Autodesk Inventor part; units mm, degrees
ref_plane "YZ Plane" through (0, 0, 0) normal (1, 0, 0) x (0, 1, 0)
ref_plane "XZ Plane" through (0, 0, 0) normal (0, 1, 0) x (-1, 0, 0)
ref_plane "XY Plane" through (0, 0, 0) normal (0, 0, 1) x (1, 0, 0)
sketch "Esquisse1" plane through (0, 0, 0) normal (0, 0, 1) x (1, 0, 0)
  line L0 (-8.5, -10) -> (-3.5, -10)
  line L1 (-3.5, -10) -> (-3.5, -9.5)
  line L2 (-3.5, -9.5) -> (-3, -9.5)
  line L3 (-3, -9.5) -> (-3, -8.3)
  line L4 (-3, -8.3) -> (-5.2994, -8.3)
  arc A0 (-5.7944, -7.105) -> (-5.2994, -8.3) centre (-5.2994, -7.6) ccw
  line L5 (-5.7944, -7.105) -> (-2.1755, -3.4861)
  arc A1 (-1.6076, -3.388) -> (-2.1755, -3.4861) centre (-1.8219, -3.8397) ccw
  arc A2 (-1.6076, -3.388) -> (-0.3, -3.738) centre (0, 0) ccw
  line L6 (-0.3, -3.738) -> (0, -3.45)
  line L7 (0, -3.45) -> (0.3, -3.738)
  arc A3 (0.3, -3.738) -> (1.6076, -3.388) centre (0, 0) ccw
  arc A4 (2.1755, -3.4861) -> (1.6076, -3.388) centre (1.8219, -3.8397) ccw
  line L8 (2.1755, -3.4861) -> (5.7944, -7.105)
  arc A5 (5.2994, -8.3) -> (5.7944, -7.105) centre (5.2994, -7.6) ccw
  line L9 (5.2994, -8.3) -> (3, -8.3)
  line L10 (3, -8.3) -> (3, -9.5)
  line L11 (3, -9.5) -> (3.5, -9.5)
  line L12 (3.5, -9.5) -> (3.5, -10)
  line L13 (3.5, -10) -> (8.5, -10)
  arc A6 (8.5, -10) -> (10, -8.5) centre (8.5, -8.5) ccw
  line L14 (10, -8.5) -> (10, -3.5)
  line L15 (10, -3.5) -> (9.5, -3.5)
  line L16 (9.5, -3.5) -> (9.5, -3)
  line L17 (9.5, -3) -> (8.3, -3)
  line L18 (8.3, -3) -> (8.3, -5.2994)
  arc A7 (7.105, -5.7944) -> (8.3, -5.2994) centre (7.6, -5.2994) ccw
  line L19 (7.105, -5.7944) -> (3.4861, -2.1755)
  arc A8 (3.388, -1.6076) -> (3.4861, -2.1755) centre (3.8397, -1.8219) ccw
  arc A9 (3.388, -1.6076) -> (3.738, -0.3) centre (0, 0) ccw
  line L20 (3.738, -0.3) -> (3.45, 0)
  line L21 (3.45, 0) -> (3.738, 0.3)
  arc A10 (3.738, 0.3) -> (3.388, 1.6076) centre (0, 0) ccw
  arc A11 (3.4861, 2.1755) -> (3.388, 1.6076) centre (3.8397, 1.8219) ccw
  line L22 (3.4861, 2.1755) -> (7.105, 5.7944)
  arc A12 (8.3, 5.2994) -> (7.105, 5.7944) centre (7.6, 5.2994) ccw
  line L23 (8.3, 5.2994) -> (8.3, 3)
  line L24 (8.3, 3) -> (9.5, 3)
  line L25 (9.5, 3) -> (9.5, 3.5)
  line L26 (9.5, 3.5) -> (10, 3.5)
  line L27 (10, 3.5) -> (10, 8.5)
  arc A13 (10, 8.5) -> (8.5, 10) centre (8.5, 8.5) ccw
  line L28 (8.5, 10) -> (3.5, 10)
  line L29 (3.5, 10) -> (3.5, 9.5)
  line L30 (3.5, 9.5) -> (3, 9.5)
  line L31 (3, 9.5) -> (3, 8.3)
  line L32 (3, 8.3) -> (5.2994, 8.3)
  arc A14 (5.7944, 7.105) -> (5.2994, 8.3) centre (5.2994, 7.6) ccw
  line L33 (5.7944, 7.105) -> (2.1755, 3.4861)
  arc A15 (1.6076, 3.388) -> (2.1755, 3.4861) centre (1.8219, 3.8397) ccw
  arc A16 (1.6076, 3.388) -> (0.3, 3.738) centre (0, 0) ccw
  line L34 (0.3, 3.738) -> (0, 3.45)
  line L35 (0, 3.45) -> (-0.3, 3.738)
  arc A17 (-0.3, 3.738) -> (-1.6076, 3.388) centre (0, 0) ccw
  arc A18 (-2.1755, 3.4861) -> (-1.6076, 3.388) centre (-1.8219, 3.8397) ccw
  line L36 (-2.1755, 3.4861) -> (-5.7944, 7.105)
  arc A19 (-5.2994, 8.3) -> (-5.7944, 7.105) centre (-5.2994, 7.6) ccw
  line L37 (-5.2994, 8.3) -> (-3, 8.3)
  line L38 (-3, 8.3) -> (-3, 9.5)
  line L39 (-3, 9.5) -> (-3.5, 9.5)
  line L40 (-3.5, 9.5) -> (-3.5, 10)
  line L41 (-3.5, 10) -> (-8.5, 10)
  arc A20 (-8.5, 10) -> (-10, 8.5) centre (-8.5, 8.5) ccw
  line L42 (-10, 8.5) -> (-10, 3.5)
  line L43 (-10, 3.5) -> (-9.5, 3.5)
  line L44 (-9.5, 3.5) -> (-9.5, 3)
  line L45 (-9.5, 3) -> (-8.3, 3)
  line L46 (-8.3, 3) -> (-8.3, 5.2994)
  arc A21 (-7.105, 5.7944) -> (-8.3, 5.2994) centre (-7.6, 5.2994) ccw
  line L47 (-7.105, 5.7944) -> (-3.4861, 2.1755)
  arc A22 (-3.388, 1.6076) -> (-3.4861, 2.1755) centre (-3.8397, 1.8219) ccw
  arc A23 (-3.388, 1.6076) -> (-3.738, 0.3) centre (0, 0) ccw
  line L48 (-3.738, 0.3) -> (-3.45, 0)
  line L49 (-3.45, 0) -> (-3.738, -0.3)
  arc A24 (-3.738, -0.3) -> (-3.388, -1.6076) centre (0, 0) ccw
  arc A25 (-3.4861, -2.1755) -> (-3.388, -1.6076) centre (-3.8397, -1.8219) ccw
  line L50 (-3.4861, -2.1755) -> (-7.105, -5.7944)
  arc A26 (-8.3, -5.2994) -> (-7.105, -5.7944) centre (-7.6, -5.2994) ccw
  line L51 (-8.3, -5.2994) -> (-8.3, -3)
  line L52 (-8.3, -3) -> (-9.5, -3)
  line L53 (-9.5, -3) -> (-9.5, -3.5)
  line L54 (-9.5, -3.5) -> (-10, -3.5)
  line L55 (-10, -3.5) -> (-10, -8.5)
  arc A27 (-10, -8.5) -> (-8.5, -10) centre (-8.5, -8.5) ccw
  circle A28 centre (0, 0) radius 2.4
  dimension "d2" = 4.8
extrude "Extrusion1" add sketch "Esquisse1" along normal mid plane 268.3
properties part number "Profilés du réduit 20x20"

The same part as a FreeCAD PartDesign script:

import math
import FreeCAD as App
import Part
import Sketcher
from FreeCAD import Vector

doc = App.newDocument("Part")
body = doc.addObject("PartDesign::Body", "Body")

# Sketch on XY plane
sketch1 = doc.addObject("Sketcher::SketchObject", "Sketch")
body.addObject(sketch1)
sketch1.AttachmentSupport = (doc.XY_Plane, [""])
sketch1.MapMode = "FlatFace"
sketch1.addGeometry(Part.ArcOfCircle(Part.Circle(Vector(-8.5, -8.5, 0), Vector(0, 0, 1), 1.5), math.radians(180), math.radians(270)), False)
sketch1.addGeometry(Part.LineSegment(Vector(-8.5, -10, 0), Vector(-3.5, -10, 0)), False)
sketch1.addGeometry(Part.LineSegment(Vector(-3.5, -10, 0), Vector(-3.5, -9.5, 0)), False)
sketch1.addGeometry(Part.LineSegment(Vector(-3.5, -9.5, 0), Vector(-3, -9.5, 0)), False)
sketch1.addGeometry(Part.LineSegment(Vector(-3, -9.5, 0), Vector(-3, -8.3, 0)), False)
sketch1.addGeometry(Part.LineSegment(Vector(-3, -8.3, 0), Vector(-5.2994, -8.3, 0)), False)
sketch1.addGeometry(Part.ArcOfCircle(Part.Circle(Vector(-5.2994, -7.6, 0), Vector(0, 0, 1), 0.700036), math.radians(135), math.radians(270)), False)
sketch1.addGeometry(Part.LineSegment(Vector(-5.7944, -7.105, 0), Vector(-2.1755, -3.4861, 0)), False)
sketch1.addGeometry(Part.ArcOfCircle(Part.Circle(Vector(-1.8219, -3.8397, 0), Vector(0, 0, 1), 0.499957), math.radians(64.618937), math.radians(135)), False)
sketch1.addGeometry(Part.ArcOfCircle(Part.Circle(Vector(-0.000391, -0.001062, 0), Vector(0, 0, 1), 3.748929), math.radians(-115.385824), math.radians(-94.583891)), False)
sketch1.addGeometry(Part.LineSegment(Vector(-0.3, -3.738, 0), Vector(0, -3.45, 0)), False)
sketch1.addGeometry(Part.LineSegment(Vector(0, -3.45, 0), Vector(0.3, -3.738, 0)), False)
sketch1.addGeometry(Part.ArcOfCircle(Part.Circle(Vector(-0.000193, 0.001116, 0), Vector(0, 0, 1), 3.751147), math.radians(-85.40989), math.radians(-64.620395)), False)
sketch1.addGeometry(Part.ArcOfCircle(Part.Circle(Vector(1.8219, -3.8397, 0), Vector(0, 0, 1), 0.500066), math.radians(45), math.radians(115.381063)), False)
sketch1.addGeometry(Part.LineSegment(Vector(2.1755, -3.4861, 0), Vector(5.7944, -7.105, 0)), False)
sketch1.addGeometry(Part.ArcOfCircle(Part.Circle(Vector(5.2994, -7.6, 0), Vector(0, 0, 1), 0.7), math.radians(-90), math.radians(45)), False)
sketch1.addGeometry(Part.LineSegment(Vector(5.2994, -8.3, 0), Vector(3, -8.3, 0)), False)
sketch1.addGeometry(Part.LineSegment(Vector(3, -8.3, 0), Vector(3, -9.5, 0)), False)
sketch1.addGeometry(Part.LineSegment(Vector(3, -9.5, 0), Vector(3.5, -9.5, 0)), False)
sketch1.addGeometry(Part.LineSegment(Vector(3.5, -9.5, 0), Vector(3.5, -10, 0)), False)
sketch1.addGeometry(Part.LineSegment(Vector(3.5, -10, 0), Vector(8.5, -10, 0)), False)
sketch1.addGeometry(Part.ArcOfCircle(Part.Circle(Vector(8.5, -8.5, 0), Vector(0, 0, 1), 1.5), math.radians(-90), math.radians(0)), False)
sketch1.addGeometry(Part.LineSegment(Vector(10, -8.5, 0), Vector(10, -3.5, 0)), False)
sketch1.addGeometry(Part.LineSegment(Vector(10, -3.5, 0), Vector(9.5, -3.5, 0)), False)
sketch1.addGeometry(Part.LineSegment(Vector(9.5, -3.5, 0), Vector(9.5, -3, 0)), False)
sketch1.addGeometry(Part.LineSegment(Vector(9.5, -3, 0), Vector(8.3, -3, 0)), False)
sketch1.addGeometry(Part.LineSegment(Vector(8.3, -3, 0), Vector(8.3, -5.2994, 0)), False)
sketch1.addGeometry(Part.ArcOfCircle(Part.Circle(Vector(7.6, -5.2994, 0), Vector(0, 0, 1), 0.700036), math.radians(-135), math.radians(0)), False)
sketch1.addGeometry(Part.LineSegment(Vector(7.105, -5.7944, 0), Vector(3.4861, -2.1755, 0)), False)
sketch1.addGeometry(Part.ArcOfCircle(Part.Circle(Vector(3.8397, -1.8219, 0), Vector(0, 0, 1), 0.499957), math.radians(154.618937), math.radians(225)), False)
sketch1.addGeometry(Part.ArcOfCircle(Part.Circle(Vector(0.001062, -0.000391, 0), Vector(0, 0, 1), 3.748929), math.radians(-25.385824), math.radians(-4.583891)), False)
sketch1.addGeometry(Part.LineSegment(Vector(3.738, -0.3, 0), Vector(3.45, 0, 0)), False)
sketch1.addGeometry(Part.LineSegment(Vector(3.45, 0, 0), Vector(3.738, 0.3, 0)), False)
sketch1.addGeometry(Part.ArcOfCircle(Part.Circle(Vector(-0.001116, -0.000193, 0), Vector(0, 0, 1), 3.751147), math.radians(4.59011), math.radians(25.379605)), False)
sketch1.addGeometry(Part.ArcOfCircle(Part.Circle(Vector(3.8397, 1.8219, 0), Vector(0, 0, 1), 0.500066), math.radians(135), math.radians(205.381063)), False)
sketch1.addGeometry(Part.LineSegment(Vector(3.4861, 2.1755, 0), Vector(7.105, 5.7944, 0)), False)
sketch1.addGeometry(Part.ArcOfCircle(Part.Circle(Vector(7.6, 5.2994, 0), Vector(0, 0, 1), 0.7), math.radians(0), math.radians(135)), False)
sketch1.addGeometry(Part.LineSegment(Vector(8.3, 5.2994, 0), Vector(8.3, 3, 0)), False)
sketch1.addGeometry(Part.LineSegment(Vector(8.3, 3, 0), Vector(9.5, 3, 0)), False)
sketch1.addGeometry(Part.LineSegment(Vector(9.5, 3, 0), Vector(9.5, 3.5, 0)), False)
sketch1.addGeometry(Part.LineSegment(Vector(9.5, 3.5, 0), Vector(10, 3.5, 0)), False)
sketch1.addGeometry(Part.LineSegment(Vector(10, 3.5, 0), Vector(10, 8.5, 0)), False)
sketch1.addGeometry(Part.ArcOfCircle(Part.Circle(Vector(8.5, 8.5, 0), Vector(0, 0, 1), 1.5), math.radians(0), math.radians(90)), False)
sketch1.addGeometry(Part.LineSegment(Vector(8.5, 10, 0), Vector(3.5, 10, 0)), False)
sketch1.addGeometry(Part.LineSegment(Vector(3.5, 10, 0), Vector(3.5, 9.5, 0)), False)
sketch1.addGeometry(Part.LineSegment(Vector(3.5, 9.5, 0), Vector(3, 9.5, 0)), False)
sketch1.addGeometry(Part.LineSegment(Vector(3, 9.5, 0), Vector(3, 8.3, 0)), False)
sketch1.addGeometry(Part.LineSegment(Vector(3, 8.3, 0), Vector(5.2994, 8.3, 0)), False)
sketch1.addGeometry(Part.ArcOfCircle(Part.Circle(Vector(5.2994, 7.6, 0), Vector(0, 0, 1), 0.700036), math.radians(-45), math.radians(90)), False)
sketch1.addGeometry(Part.LineSegment(Vector(5.7944, 7.105, 0), Vector(2.1755, 3.4861, 0)), False)
sketch1.addGeometry(Part.ArcOfCircle(Part.Circle(Vector(1.8219, 3.8397, 0), Vector(0, 0, 1), 0.499957), math.radians(-115.381063), math.radians(-45)), False)
sketch1.addGeometry(Part.ArcOfCircle(Part.Circle(Vector(0.000391, 0.001062, 0), Vector(0, 0, 1), 3.748929), math.radians(64.614176), math.radians(85.416109)), False)
sketch1.addGeometry(Part.LineSegment(Vector(0.3, 3.738, 0), Vector(0, 3.45, 0)), False)
sketch1.addGeometry(Part.LineSegment(Vector(0, 3.45, 0), Vector(-0.3, 3.738, 0)), False)
sketch1.addGeometry(Part.ArcOfCircle(Part.Circle(Vector(0.000193, -0.001116, 0), Vector(0, 0, 1), 3.751147), math.radians(94.59011), math.radians(115.379605)), False)
sketch1.addGeometry(Part.ArcOfCircle(Part.Circle(Vector(-1.8219, 3.8397, 0), Vector(0, 0, 1), 0.500066), math.radians(-135), math.radians(-64.618937)), False)
sketch1.addGeometry(Part.LineSegment(Vector(-2.1755, 3.4861, 0), Vector(-5.7944, 7.105, 0)), False)
sketch1.addGeometry(Part.ArcOfCircle(Part.Circle(Vector(-5.2994, 7.6, 0), Vector(0, 0, 1), 0.7), math.radians(90), math.radians(225)), False)
sketch1.addGeometry(Part.LineSegment(Vector(-5.2994, 8.3, 0), Vector(-3, 8.3, 0)), False)
sketch1.addGeometry(Part.LineSegment(Vector(-3, 8.3, 0), Vector(-3, 9.5, 0)), False)
sketch1.addGeometry(Part.LineSegment(Vector(-3, 9.5, 0), Vector(-3.5, 9.5, 0)), False)
sketch1.addGeometry(Part.LineSegment(Vector(-3.5, 9.5, 0), Vector(-3.5, 10, 0)), False)
sketch1.addGeometry(Part.LineSegment(Vector(-3.5, 10, 0), Vector(-8.5, 10, 0)), False)
sketch1.addGeometry(Part.ArcOfCircle(Part.Circle(Vector(-8.5, 8.5, 0), Vector(0, 0, 1), 1.5), math.radians(90), math.radians(180)), False)
sketch1.addGeometry(Part.LineSegment(Vector(-10, 8.5, 0), Vector(-10, 3.5, 0)), False)
sketch1.addGeometry(Part.LineSegment(Vector(-10, 3.5, 0), Vector(-9.5, 3.5, 0)), False)
sketch1.addGeometry(Part.LineSegment(Vector(-9.5, 3.5, 0), Vector(-9.5, 3, 0)), False)
sketch1.addGeometry(Part.LineSegment(Vector(-9.5, 3, 0), Vector(-8.3, 3, 0)), False)
sketch1.addGeometry(Part.LineSegment(Vector(-8.3, 3, 0), Vector(-8.3, 5.2994, 0)), False)
sketch1.addGeometry(Part.ArcOfCircle(Part.Circle(Vector(-7.6, 5.2994, 0), Vector(0, 0, 1), 0.700036), math.radians(45), math.radians(180)), False)
sketch1.addGeometry(Part.LineSegment(Vector(-7.105, 5.7944, 0), Vector(-3.4861, 2.1755, 0)), False)
sketch1.addGeometry(Part.ArcOfCircle(Part.Circle(Vector(-3.8397, 1.8219, 0), Vector(0, 0, 1), 0.499957), math.radians(-25.381063), math.radians(45)), False)
sketch1.addGeometry(Part.ArcOfCircle(Part.Circle(Vector(-0.001062, 0.000391, 0), Vector(0, 0, 1), 3.748929), math.radians(154.614176), math.radians(175.416109)), False)
sketch1.addGeometry(Part.LineSegment(Vector(-3.738, 0.3, 0), Vector(-3.45, 0, 0)), False)
sketch1.addGeometry(Part.LineSegment(Vector(-3.45, 0, 0), Vector(-3.738, -0.3, 0)), False)
sketch1.addGeometry(Part.ArcOfCircle(Part.Circle(Vector(0.001116, 0.000193, 0), Vector(0, 0, 1), 3.751147), math.radians(-175.40989), math.radians(-154.620395)), False)
sketch1.addGeometry(Part.ArcOfCircle(Part.Circle(Vector(-3.8397, -1.8219, 0), Vector(0, 0, 1), 0.500066), math.radians(-45), math.radians(25.381063)), False)
sketch1.addGeometry(Part.LineSegment(Vector(-3.4861, -2.1755, 0), Vector(-7.105, -5.7944, 0)), False)
sketch1.addGeometry(Part.ArcOfCircle(Part.Circle(Vector(-7.6, -5.2994, 0), Vector(0, 0, 1), 0.7), math.radians(180), math.radians(315)), False)
sketch1.addGeometry(Part.LineSegment(Vector(-8.3, -5.2994, 0), Vector(-8.3, -3, 0)), False)
sketch1.addGeometry(Part.LineSegment(Vector(-8.3, -3, 0), Vector(-9.5, -3, 0)), False)
sketch1.addGeometry(Part.LineSegment(Vector(-9.5, -3, 0), Vector(-9.5, -3.5, 0)), False)
sketch1.addGeometry(Part.LineSegment(Vector(-9.5, -3.5, 0), Vector(-10, -3.5, 0)), False)
sketch1.addGeometry(Part.LineSegment(Vector(-10, -3.5, 0), Vector(-10, -8.5, 0)), False)
sketch1.addGeometry(Part.Circle(Vector(0, 0, 0), Vector(0, 0, 1), 2.4), False)
sketch1.addConstraint(Sketcher.Constraint("Coincident", 0, 2, 1, 1))
sketch1.addConstraint(Sketcher.Constraint("Coincident", 1, 2, 2, 1))
sketch1.addConstraint(Sketcher.Constraint("Coincident", 2, 2, 3, 1))
sketch1.addConstraint(Sketcher.Constraint("Coincident", 3, 2, 4, 1))
sketch1.addConstraint(Sketcher.Constraint("Coincident", 4, 2, 5, 1))
sketch1.addConstraint(Sketcher.Constraint("Coincident", 5, 2, 6, 2))
sketch1.addConstraint(Sketcher.Constraint("Coincident", 6, 1, 7, 1))
sketch1.addConstraint(Sketcher.Constraint("Coincident", 7, 2, 8, 2))
sketch1.addConstraint(Sketcher.Constraint("Coincident", 8, 1, 9, 1))
sketch1.addConstraint(Sketcher.Constraint("Coincident", 9, 2, 10, 1))
sketch1.addConstraint(Sketcher.Constraint("Coincident", 10, 2, 11, 1))
sketch1.addConstraint(Sketcher.Constraint("Coincident", 11, 2, 12, 1))
sketch1.addConstraint(Sketcher.Constraint("Coincident", 12, 2, 13, 2))
sketch1.addConstraint(Sketcher.Constraint("Coincident", 13, 1, 14, 1))
sketch1.addConstraint(Sketcher.Constraint("Coincident", 14, 2, 15, 2))
sketch1.addConstraint(Sketcher.Constraint("Coincident", 15, 1, 16, 1))
sketch1.addConstraint(Sketcher.Constraint("Coincident", 16, 2, 17, 1))
sketch1.addConstraint(Sketcher.Constraint("Coincident", 17, 2, 18, 1))
sketch1.addConstraint(Sketcher.Constraint("Coincident", 18, 2, 19, 1))
sketch1.addConstraint(Sketcher.Constraint("Coincident", 19, 2, 20, 1))
sketch1.addConstraint(Sketcher.Constraint("Coincident", 20, 2, 21, 1))
sketch1.addConstraint(Sketcher.Constraint("Coincident", 21, 2, 22, 1))
sketch1.addConstraint(Sketcher.Constraint("Coincident", 22, 2, 23, 1))
sketch1.addConstraint(Sketcher.Constraint("Coincident", 23, 2, 24, 1))
sketch1.addConstraint(Sketcher.Constraint("Coincident", 24, 2, 25, 1))
sketch1.addConstraint(Sketcher.Constraint("Coincident", 25, 2, 26, 1))
sketch1.addConstraint(Sketcher.Constraint("Coincident", 26, 2, 27, 2))
sketch1.addConstraint(Sketcher.Constraint("Coincident", 27, 1, 28, 1))
sketch1.addConstraint(Sketcher.Constraint("Coincident", 28, 2, 29, 2))
sketch1.addConstraint(Sketcher.Constraint("Coincident", 29, 1, 30, 1))
sketch1.addConstraint(Sketcher.Constraint("Coincident", 30, 2, 31, 1))
sketch1.addConstraint(Sketcher.Constraint("Coincident", 31, 2, 32, 1))
sketch1.addConstraint(Sketcher.Constraint("Coincident", 32, 2, 33, 1))
sketch1.addConstraint(Sketcher.Constraint("Coincident", 33, 2, 34, 2))
sketch1.addConstraint(Sketcher.Constraint("Coincident", 34, 1, 35, 1))
sketch1.addConstraint(Sketcher.Constraint("Coincident", 35, 2, 36, 2))
sketch1.addConstraint(Sketcher.Constraint("Coincident", 36, 1, 37, 1))
sketch1.addConstraint(Sketcher.Constraint("Coincident", 37, 2, 38, 1))
sketch1.addConstraint(Sketcher.Constraint("Coincident", 38, 2, 39, 1))
sketch1.addConstraint(Sketcher.Constraint("Coincident", 39, 2, 40, 1))
sketch1.addConstraint(Sketcher.Constraint("Coincident", 40, 2, 41, 1))
sketch1.addConstraint(Sketcher.Constraint("Coincident", 41, 2, 42, 1))
sketch1.addConstraint(Sketcher.Constraint("Coincident", 42, 2, 43, 1))
sketch1.addConstraint(Sketcher.Constraint("Coincident", 43, 2, 44, 1))
sketch1.addConstraint(Sketcher.Constraint("Coincident", 44, 2, 45, 1))
sketch1.addConstraint(Sketcher.Constraint("Coincident", 45, 2, 46, 1))
sketch1.addConstraint(Sketcher.Constraint("Coincident", 46, 2, 47, 1))
sketch1.addConstraint(Sketcher.Constraint("Coincident", 47, 2, 48, 2))
sketch1.addConstraint(Sketcher.Constraint("Coincident", 48, 1, 49, 1))
sketch1.addConstraint(Sketcher.Constraint("Coincident", 49, 2, 50, 2))
sketch1.addConstraint(Sketcher.Constraint("Coincident", 50, 1, 51, 1))
sketch1.addConstraint(Sketcher.Constraint("Coincident", 51, 2, 52, 1))
sketch1.addConstraint(Sketcher.Constraint("Coincident", 52, 2, 53, 1))
sketch1.addConstraint(Sketcher.Constraint("Coincident", 53, 2, 54, 1))
sketch1.addConstraint(Sketcher.Constraint("Coincident", 54, 2, 55, 2))
sketch1.addConstraint(Sketcher.Constraint("Coincident", 55, 1, 56, 1))
sketch1.addConstraint(Sketcher.Constraint("Coincident", 56, 2, 57, 2))
sketch1.addConstraint(Sketcher.Constraint("Coincident", 57, 1, 58, 1))
sketch1.addConstraint(Sketcher.Constraint("Coincident", 58, 2, 59, 1))
sketch1.addConstraint(Sketcher.Constraint("Coincident", 59, 2, 60, 1))
sketch1.addConstraint(Sketcher.Constraint("Coincident", 60, 2, 61, 1))
sketch1.addConstraint(Sketcher.Constraint("Coincident", 61, 2, 62, 1))
sketch1.addConstraint(Sketcher.Constraint("Coincident", 62, 2, 63, 1))
sketch1.addConstraint(Sketcher.Constraint("Coincident", 63, 2, 64, 1))
sketch1.addConstraint(Sketcher.Constraint("Coincident", 64, 2, 65, 1))
sketch1.addConstraint(Sketcher.Constraint("Coincident", 65, 2, 66, 1))
sketch1.addConstraint(Sketcher.Constraint("Coincident", 66, 2, 67, 1))
sketch1.addConstraint(Sketcher.Constraint("Coincident", 67, 2, 68, 1))
sketch1.addConstraint(Sketcher.Constraint("Coincident", 68, 2, 69, 2))
sketch1.addConstraint(Sketcher.Constraint("Coincident", 69, 1, 70, 1))
sketch1.addConstraint(Sketcher.Constraint("Coincident", 70, 2, 71, 2))
sketch1.addConstraint(Sketcher.Constraint("Coincident", 71, 1, 72, 1))
sketch1.addConstraint(Sketcher.Constraint("Coincident", 72, 2, 73, 1))
sketch1.addConstraint(Sketcher.Constraint("Coincident", 73, 2, 74, 1))
sketch1.addConstraint(Sketcher.Constraint("Coincident", 74, 2, 75, 1))
sketch1.addConstraint(Sketcher.Constraint("Coincident", 75, 2, 76, 2))
sketch1.addConstraint(Sketcher.Constraint("Coincident", 76, 1, 77, 1))
sketch1.addConstraint(Sketcher.Constraint("Coincident", 77, 2, 78, 2))
sketch1.addConstraint(Sketcher.Constraint("Coincident", 78, 1, 79, 1))
sketch1.addConstraint(Sketcher.Constraint("Coincident", 79, 2, 80, 1))
sketch1.addConstraint(Sketcher.Constraint("Coincident", 80, 2, 81, 1))
sketch1.addConstraint(Sketcher.Constraint("Coincident", 81, 2, 82, 1))
sketch1.addConstraint(Sketcher.Constraint("Coincident", 82, 2, 83, 1))
sketch1.addConstraint(Sketcher.Constraint("Coincident", 83, 2, 0, 1))
sketch1.addConstraint(Sketcher.Constraint("Horizontal", 1))
sketch1.addConstraint(Sketcher.Constraint("Vertical", 2))
sketch1.addConstraint(Sketcher.Constraint("Horizontal", 3))
sketch1.addConstraint(Sketcher.Constraint("Vertical", 4))
sketch1.addConstraint(Sketcher.Constraint("Horizontal", 5))
sketch1.addConstraint(Sketcher.Constraint("Horizontal", 16))
sketch1.addConstraint(Sketcher.Constraint("Vertical", 17))
sketch1.addConstraint(Sketcher.Constraint("Horizontal", 18))
sketch1.addConstraint(Sketcher.Constraint("Vertical", 19))
sketch1.addConstraint(Sketcher.Constraint("Horizontal", 20))
sketch1.addConstraint(Sketcher.Constraint("Vertical", 22))
sketch1.addConstraint(Sketcher.Constraint("Horizontal", 23))
sketch1.addConstraint(Sketcher.Constraint("Vertical", 24))
sketch1.addConstraint(Sketcher.Constraint("Horizontal", 25))
sketch1.addConstraint(Sketcher.Constraint("Vertical", 26))
sketch1.addConstraint(Sketcher.Constraint("Vertical", 37))
sketch1.addConstraint(Sketcher.Constraint("Horizontal", 38))
sketch1.addConstraint(Sketcher.Constraint("Vertical", 39))
sketch1.addConstraint(Sketcher.Constraint("Horizontal", 40))
sketch1.addConstraint(Sketcher.Constraint("Vertical", 41))
sketch1.addConstraint(Sketcher.Constraint("Horizontal", 43))
sketch1.addConstraint(Sketcher.Constraint("Vertical", 44))
sketch1.addConstraint(Sketcher.Constraint("Horizontal", 45))
sketch1.addConstraint(Sketcher.Constraint("Vertical", 46))
sketch1.addConstraint(Sketcher.Constraint("Horizontal", 47))
sketch1.addConstraint(Sketcher.Constraint("Horizontal", 58))
sketch1.addConstraint(Sketcher.Constraint("Vertical", 59))
sketch1.addConstraint(Sketcher.Constraint("Horizontal", 60))
sketch1.addConstraint(Sketcher.Constraint("Vertical", 61))
sketch1.addConstraint(Sketcher.Constraint("Horizontal", 62))
sketch1.addConstraint(Sketcher.Constraint("Vertical", 64))
sketch1.addConstraint(Sketcher.Constraint("Horizontal", 65))
sketch1.addConstraint(Sketcher.Constraint("Vertical", 66))
sketch1.addConstraint(Sketcher.Constraint("Horizontal", 67))
sketch1.addConstraint(Sketcher.Constraint("Vertical", 68))
sketch1.addConstraint(Sketcher.Constraint("Vertical", 79))
sketch1.addConstraint(Sketcher.Constraint("Horizontal", 80))
sketch1.addConstraint(Sketcher.Constraint("Vertical", 81))
sketch1.addConstraint(Sketcher.Constraint("Horizontal", 82))
sketch1.addConstraint(Sketcher.Constraint("Vertical", 83))
sketch1.addConstraint(Sketcher.Constraint("Coincident", 84, 3, -1, 1))
sketch1.addConstraint(Sketcher.Constraint("PointOnObject", 12, 3, -2))
sketch1.addConstraint(Sketcher.Constraint("PointOnObject", 33, 3, -1))
sketch1.addConstraint(Sketcher.Constraint("PointOnObject", 54, 3, -2))
sketch1.addConstraint(Sketcher.Constraint("PointOnObject", 75, 3, -1))
sketch1.addConstraint(Sketcher.Constraint("PointOnObject", 10, 2, -2))
sketch1.addConstraint(Sketcher.Constraint("PointOnObject", 31, 2, -1))
sketch1.addConstraint(Sketcher.Constraint("PointOnObject", 52, 2, -2))
sketch1.addConstraint(Sketcher.Constraint("PointOnObject", 73, 2, -1))
sketch1.addConstraint(Sketcher.Constraint("Diameter", 84, 4.8))
sketch1.addConstraint(Sketcher.Constraint("Radius", 0, 1.5))
sketch1.addConstraint(Sketcher.Constraint("Radius", 6, 0.7))
sketch1.addConstraint(Sketcher.Constraint("Radius", 8, 0.5))
sketch1.addConstraint(Sketcher.Constraint("Radius", 13, 0.5))
sketch1.addConstraint(Sketcher.Constraint("Radius", 15, 0.7))
sketch1.addConstraint(Sketcher.Constraint("Radius", 21, 1.5))
sketch1.addConstraint(Sketcher.Constraint("Radius", 27, 0.7))
sketch1.addConstraint(Sketcher.Constraint("Radius", 29, 0.5))
sketch1.addConstraint(Sketcher.Constraint("Radius", 34, 0.5))
sketch1.addConstraint(Sketcher.Constraint("Radius", 36, 0.7))
sketch1.addConstraint(Sketcher.Constraint("Radius", 42, 1.5))
sketch1.addConstraint(Sketcher.Constraint("Radius", 48, 0.7))
sketch1.addConstraint(Sketcher.Constraint("Radius", 50, 0.5))
sketch1.addConstraint(Sketcher.Constraint("Radius", 55, 0.5))
sketch1.addConstraint(Sketcher.Constraint("Radius", 57, 0.7))
sketch1.addConstraint(Sketcher.Constraint("Radius", 63, 1.5))
sketch1.addConstraint(Sketcher.Constraint("Radius", 69, 0.7))
sketch1.addConstraint(Sketcher.Constraint("Radius", 71, 0.5))
sketch1.addConstraint(Sketcher.Constraint("Radius", 76, 0.5))
sketch1.addConstraint(Sketcher.Constraint("Radius", 78, 0.7))
sketch1.addConstraint(Sketcher.Constraint("DistanceX", 1, 1, 1, 2, 5.0))
sketch1.addConstraint(Sketcher.Constraint("DistanceX", 20, 1, 20, 2, 5.0))
sketch1.addConstraint(Sketcher.Constraint("DistanceX", 43, 2, 43, 1, 5.0))
sketch1.addConstraint(Sketcher.Constraint("DistanceX", 62, 2, 62, 1, 5.0))
sketch1.addConstraint(Sketcher.Constraint("DistanceY", 22, 1, 22, 2, 5.0))
sketch1.addConstraint(Sketcher.Constraint("DistanceY", 41, 1, 41, 2, 5.0))
sketch1.addConstraint(Sketcher.Constraint("DistanceY", 64, 2, 64, 1, 5.0))
sketch1.addConstraint(Sketcher.Constraint("DistanceY", 83, 2, 83, 1, 5.0))
sketch1.addConstraint(Sketcher.Constraint("DistanceX", 3, 1, 3, 2, 0.5))
sketch1.addConstraint(Sketcher.Constraint("DistanceX", 18, 1, 18, 2, 0.5))
sketch1.addConstraint(Sketcher.Constraint("DistanceX", 23, 2, 23, 1, 0.5))
sketch1.addConstraint(Sketcher.Constraint("DistanceX", 25, 2, 25, 1, 1.2))
sketch1.addConstraint(Sketcher.Constraint("DistanceX", 38, 1, 38, 2, 1.2))
sketch1.addConstraint(Sketcher.Constraint("DistanceX", 40, 1, 40, 2, 0.5))
sketch1.addConstraint(Sketcher.Constraint("DistanceX", 45, 2, 45, 1, 0.5))
sketch1.addConstraint(Sketcher.Constraint("DistanceX", 60, 2, 60, 1, 0.5))
sketch1.addConstraint(Sketcher.Constraint("DistanceX", 65, 1, 65, 2, 0.5))
sketch1.addConstraint(Sketcher.Constraint("DistanceX", 67, 1, 67, 2, 1.2))
sketch1.addConstraint(Sketcher.Constraint("DistanceX", 80, 2, 80, 1, 1.2))
sketch1.addConstraint(Sketcher.Constraint("DistanceX", 82, 2, 82, 1, 0.5))
sketch1.addConstraint(Sketcher.Constraint("DistanceY", 2, 1, 2, 2, 0.5))
sketch1.addConstraint(Sketcher.Constraint("DistanceY", 4, 1, 4, 2, 1.2))
sketch1.addConstraint(Sketcher.Constraint("DistanceY", 17, 2, 17, 1, 1.2))
sketch1.addConstraint(Sketcher.Constraint("DistanceY", 19, 2, 19, 1, 0.5))
sketch1.addConstraint(Sketcher.Constraint("DistanceY", 24, 1, 24, 2, 0.5))
sketch1.addConstraint(Sketcher.Constraint("DistanceY", 39, 1, 39, 2, 0.5))
sketch1.addConstraint(Sketcher.Constraint("DistanceY", 44, 2, 44, 1, 0.5))
sketch1.addConstraint(Sketcher.Constraint("DistanceY", 46, 2, 46, 1, 1.2))
sketch1.addConstraint(Sketcher.Constraint("DistanceY", 59, 1, 59, 2, 1.2))
sketch1.addConstraint(Sketcher.Constraint("DistanceY", 61, 1, 61, 2, 0.5))
sketch1.addConstraint(Sketcher.Constraint("DistanceY", 66, 2, 66, 1, 0.5))
sketch1.addConstraint(Sketcher.Constraint("DistanceY", 81, 2, 81, 1, 0.5))
sketch1.addConstraint(Sketcher.Constraint("DistanceY", 0, 2, -1, 1, 10.0))
sketch1.addConstraint(Sketcher.Constraint("DistanceX", 3, 2, -1, 1, 3.0))
sketch1.addConstraint(Sketcher.Constraint("DistanceX", -1, 1, 16, 2, 3.0))
sketch1.addConstraint(Sketcher.Constraint("DistanceY", 19, 2, -1, 1, 10.0))
sketch1.addConstraint(Sketcher.Constraint("DistanceX", -1, 1, 21, 2, 10.0))
sketch1.addConstraint(Sketcher.Constraint("DistanceY", 24, 2, -1, 1, 3.0))
sketch1.addConstraint(Sketcher.Constraint("DistanceY", -1, 1, 37, 2, 3.0))
sketch1.addConstraint(Sketcher.Constraint("DistanceX", -1, 1, 40, 2, 10.0))
sketch1.addConstraint(Sketcher.Constraint("DistanceY", -1, 1, 42, 2, 10.0))
sketch1.addConstraint(Sketcher.Constraint("DistanceX", -1, 1, 45, 2, 3.0))
sketch1.addConstraint(Sketcher.Constraint("DistanceX", 58, 2, -1, 1, 3.0))
sketch1.addConstraint(Sketcher.Constraint("DistanceY", -1, 1, 61, 2, 10.0))
sketch1.addConstraint(Sketcher.Constraint("DistanceX", 63, 2, -1, 1, 10.0))
sketch1.addConstraint(Sketcher.Constraint("DistanceY", -1, 1, 66, 2, 3.0))
sketch1.addConstraint(Sketcher.Constraint("DistanceY", 79, 2, -1, 1, 3.0))
sketch1.addConstraint(Sketcher.Constraint("DistanceX", 82, 2, -1, 1, 10.0))
sketch1.addConstraint(Sketcher.Constraint("Radius", 9, 3.749))
sketch1.addConstraint(Sketcher.Constraint("Radius", 30, 3.749))
sketch1.addConstraint(Sketcher.Constraint("Radius", 51, 3.749))
sketch1.addConstraint(Sketcher.Constraint("Radius", 72, 3.749))
sketch1.addConstraint(Sketcher.Constraint("DistanceX", 9, 2, -1, 1, 0.3))
sketch1.addConstraint(Sketcher.Constraint("DistanceX", -1, 1, 11, 2, 0.3))
sketch1.addConstraint(Sketcher.Constraint("DistanceY", 30, 2, -1, 1, 0.3))
sketch1.addConstraint(Sketcher.Constraint("DistanceY", -1, 1, 32, 2, 0.3))
sketch1.addConstraint(Sketcher.Constraint("DistanceX", -1, 1, 51, 2, 0.3))
sketch1.addConstraint(Sketcher.Constraint("DistanceX", 53, 2, -1, 1, 0.3))
sketch1.addConstraint(Sketcher.Constraint("DistanceY", -1, 1, 72, 2, 0.3))
sketch1.addConstraint(Sketcher.Constraint("DistanceY", 74, 2, -1, 1, 0.3))
sketch1.addConstraint(Sketcher.Constraint("Radius", 12, 3.7511))
sketch1.addConstraint(Sketcher.Constraint("Radius", 33, 3.7511))
sketch1.addConstraint(Sketcher.Constraint("Radius", 54, 3.7511))
sketch1.addConstraint(Sketcher.Constraint("Radius", 75, 3.7511))
sketch1.addConstraint(Sketcher.Constraint("DistanceY", 10, 2, -1, 1, 3.45))
sketch1.addConstraint(Sketcher.Constraint("DistanceX", -1, 1, 31, 2, 3.45))
sketch1.addConstraint(Sketcher.Constraint("DistanceY", -1, 1, 52, 2, 3.45))
sketch1.addConstraint(Sketcher.Constraint("DistanceX", 73, 2, -1, 1, 3.45))
sketch1.addConstraint(Sketcher.Constraint("Distance", 7, 5.118))
sketch1.addConstraint(Sketcher.Constraint("Distance", 14, 5.118))
sketch1.addConstraint(Sketcher.Constraint("Distance", 28, 5.118))
sketch1.addConstraint(Sketcher.Constraint("Distance", 35, 5.118))
sketch1.addConstraint(Sketcher.Constraint("Distance", 49, 5.118))
sketch1.addConstraint(Sketcher.Constraint("Distance", 56, 5.118))
sketch1.addConstraint(Sketcher.Constraint("Distance", 70, 5.118))
sketch1.addConstraint(Sketcher.Constraint("Distance", 77, 5.118))
sketch1.addConstraint(Sketcher.Constraint("DistanceX", 5, 2, 5, 1, 2.2994))
sketch1.addConstraint(Sketcher.Constraint("DistanceX", 16, 2, 16, 1, 2.2994))
sketch1.addConstraint(Sketcher.Constraint("DistanceX", 47, 1, 47, 2, 2.2994))
sketch1.addConstraint(Sketcher.Constraint("DistanceX", 58, 1, 58, 2, 2.2994))
sketch1.addConstraint(Sketcher.Constraint("DistanceY", 26, 2, 26, 1, 2.2994))
sketch1.addConstraint(Sketcher.Constraint("DistanceY", 37, 2, 37, 1, 2.2994))
sketch1.addConstraint(Sketcher.Constraint("DistanceY", 68, 1, 68, 2, 2.2994))
sketch1.addConstraint(Sketcher.Constraint("DistanceY", 79, 1, 79, 2, 2.2994))
sketch1.addConstraint(Sketcher.Constraint("DistanceX", 8, 3, -1, 1, 1.822))
sketch1.addConstraint(Sketcher.Constraint("DistanceY", 9, 3, -1, 1, 0.001))
sketch1.addConstraint(Sketcher.Constraint("DistanceY", -1, 1, 12, 3, 0.001))
sketch1.addConstraint(Sketcher.Constraint("DistanceX", -1, 1, 13, 3, 1.822))
sketch1.addConstraint(Sketcher.Constraint("DistanceY", 29, 3, -1, 1, 1.822))
sketch1.addConstraint(Sketcher.Constraint("DistanceX", -1, 1, 30, 3, 0.001))
sketch1.addConstraint(Sketcher.Constraint("DistanceX", 33, 3, -1, 1, 0.001))
sketch1.addConstraint(Sketcher.Constraint("DistanceY", -1, 1, 34, 3, 1.822))
sketch1.addConstraint(Sketcher.Constraint("DistanceX", -1, 1, 50, 3, 1.822))
sketch1.addConstraint(Sketcher.Constraint("DistanceY", -1, 1, 51, 3, 0.001))
sketch1.addConstraint(Sketcher.Constraint("DistanceY", 54, 3, -1, 1, 0.001))
sketch1.addConstraint(Sketcher.Constraint("DistanceX", 55, 3, -1, 1, 1.822))
sketch1.addConstraint(Sketcher.Constraint("DistanceY", -1, 1, 71, 3, 1.822))
sketch1.addConstraint(Sketcher.Constraint("DistanceX", 72, 3, -1, 1, 0.001))
sketch1.addConstraint(Sketcher.Constraint("DistanceX", -1, 1, 75, 3, 0.001))
sketch1.addConstraint(Sketcher.Constraint("DistanceY", 76, 3, -1, 1, 1.822))
sketch1.addConstraint(Sketcher.Constraint("DistanceY", 6, 1, -1, 1, 7.105))
sketch1.addConstraint(Sketcher.Constraint("DistanceY", 7, 2, -1, 1, 3.486))
sketch1.addConstraint(Sketcher.Constraint("DistanceY", 8, 1, -1, 1, 3.388))
sketch1.addConstraint(Sketcher.Constraint("DistanceY", 9, 2, -1, 1, 3.738))
sketch1.addConstraint(Sketcher.Constraint("DistanceY", 12, 2, -1, 1, 3.388))
sketch1.addConstraint(Sketcher.Constraint("DistanceY", 13, 1, -1, 1, 3.486))
sketch1.addConstraint(Sketcher.Constraint("DistanceY", 14, 2, -1, 1, 7.105))
sketch1.addConstraint(Sketcher.Constraint("DistanceX", -1, 1, 27, 1, 7.105))
sketch1.addConstraint(Sketcher.Constraint("DistanceX", -1, 1, 28, 2, 3.486))
sketch1.addConstraint(Sketcher.Constraint("DistanceX", -1, 1, 29, 1, 3.388))
sketch1.addConstraint(Sketcher.Constraint("DistanceX", -1, 1, 30, 2, 3.738))
sketch1.addConstraint(Sketcher.Constraint("DistanceX", -1, 1, 33, 2, 3.388))
sketch1.addConstraint(Sketcher.Constraint("DistanceX", -1, 1, 34, 1, 3.486))
sketch1.addConstraint(Sketcher.Constraint("DistanceX", -1, 1, 35, 2, 7.105))
sketch1.addConstraint(Sketcher.Constraint("DistanceY", -1, 1, 48, 1, 7.105))
sketch1.addConstraint(Sketcher.Constraint("DistanceY", -1, 1, 49, 2, 3.486))
sketch1.addConstraint(Sketcher.Constraint("DistanceY", -1, 1, 50, 1, 3.388))
sketch1.addConstraint(Sketcher.Constraint("DistanceY", -1, 1, 51, 2, 3.738))
sketch1.addConstraint(Sketcher.Constraint("DistanceY", -1, 1, 54, 2, 3.388))
sketch1.addConstraint(Sketcher.Constraint("DistanceY", -1, 1, 55, 1, 3.486))
sketch1.addConstraint(Sketcher.Constraint("DistanceY", -1, 1, 56, 2, 7.105))
sketch1.addConstraint(Sketcher.Constraint("DistanceX", 69, 1, -1, 1, 7.105))
sketch1.addConstraint(Sketcher.Constraint("DistanceX", 70, 2, -1, 1, 3.486))
sketch1.addConstraint(Sketcher.Constraint("DistanceX", 71, 1, -1, 1, 3.388))
sketch1.addConstraint(Sketcher.Constraint("DistanceX", 72, 2, -1, 1, 3.738))
sketch1.addConstraint(Sketcher.Constraint("DistanceX", 75, 2, -1, 1, 3.388))
sketch1.addConstraint(Sketcher.Constraint("DistanceX", 76, 1, -1, 1, 3.486))
sketch1.addConstraint(Sketcher.Constraint("DistanceX", 77, 2, -1, 1, 7.105))
pad1 = doc.addObject("PartDesign::Pad", "Pad")
body.addObject(pad1)
pad1.Profile = sketch1
pad1.Length = 268.3
pad1.Midplane = True

doc.recompute()
